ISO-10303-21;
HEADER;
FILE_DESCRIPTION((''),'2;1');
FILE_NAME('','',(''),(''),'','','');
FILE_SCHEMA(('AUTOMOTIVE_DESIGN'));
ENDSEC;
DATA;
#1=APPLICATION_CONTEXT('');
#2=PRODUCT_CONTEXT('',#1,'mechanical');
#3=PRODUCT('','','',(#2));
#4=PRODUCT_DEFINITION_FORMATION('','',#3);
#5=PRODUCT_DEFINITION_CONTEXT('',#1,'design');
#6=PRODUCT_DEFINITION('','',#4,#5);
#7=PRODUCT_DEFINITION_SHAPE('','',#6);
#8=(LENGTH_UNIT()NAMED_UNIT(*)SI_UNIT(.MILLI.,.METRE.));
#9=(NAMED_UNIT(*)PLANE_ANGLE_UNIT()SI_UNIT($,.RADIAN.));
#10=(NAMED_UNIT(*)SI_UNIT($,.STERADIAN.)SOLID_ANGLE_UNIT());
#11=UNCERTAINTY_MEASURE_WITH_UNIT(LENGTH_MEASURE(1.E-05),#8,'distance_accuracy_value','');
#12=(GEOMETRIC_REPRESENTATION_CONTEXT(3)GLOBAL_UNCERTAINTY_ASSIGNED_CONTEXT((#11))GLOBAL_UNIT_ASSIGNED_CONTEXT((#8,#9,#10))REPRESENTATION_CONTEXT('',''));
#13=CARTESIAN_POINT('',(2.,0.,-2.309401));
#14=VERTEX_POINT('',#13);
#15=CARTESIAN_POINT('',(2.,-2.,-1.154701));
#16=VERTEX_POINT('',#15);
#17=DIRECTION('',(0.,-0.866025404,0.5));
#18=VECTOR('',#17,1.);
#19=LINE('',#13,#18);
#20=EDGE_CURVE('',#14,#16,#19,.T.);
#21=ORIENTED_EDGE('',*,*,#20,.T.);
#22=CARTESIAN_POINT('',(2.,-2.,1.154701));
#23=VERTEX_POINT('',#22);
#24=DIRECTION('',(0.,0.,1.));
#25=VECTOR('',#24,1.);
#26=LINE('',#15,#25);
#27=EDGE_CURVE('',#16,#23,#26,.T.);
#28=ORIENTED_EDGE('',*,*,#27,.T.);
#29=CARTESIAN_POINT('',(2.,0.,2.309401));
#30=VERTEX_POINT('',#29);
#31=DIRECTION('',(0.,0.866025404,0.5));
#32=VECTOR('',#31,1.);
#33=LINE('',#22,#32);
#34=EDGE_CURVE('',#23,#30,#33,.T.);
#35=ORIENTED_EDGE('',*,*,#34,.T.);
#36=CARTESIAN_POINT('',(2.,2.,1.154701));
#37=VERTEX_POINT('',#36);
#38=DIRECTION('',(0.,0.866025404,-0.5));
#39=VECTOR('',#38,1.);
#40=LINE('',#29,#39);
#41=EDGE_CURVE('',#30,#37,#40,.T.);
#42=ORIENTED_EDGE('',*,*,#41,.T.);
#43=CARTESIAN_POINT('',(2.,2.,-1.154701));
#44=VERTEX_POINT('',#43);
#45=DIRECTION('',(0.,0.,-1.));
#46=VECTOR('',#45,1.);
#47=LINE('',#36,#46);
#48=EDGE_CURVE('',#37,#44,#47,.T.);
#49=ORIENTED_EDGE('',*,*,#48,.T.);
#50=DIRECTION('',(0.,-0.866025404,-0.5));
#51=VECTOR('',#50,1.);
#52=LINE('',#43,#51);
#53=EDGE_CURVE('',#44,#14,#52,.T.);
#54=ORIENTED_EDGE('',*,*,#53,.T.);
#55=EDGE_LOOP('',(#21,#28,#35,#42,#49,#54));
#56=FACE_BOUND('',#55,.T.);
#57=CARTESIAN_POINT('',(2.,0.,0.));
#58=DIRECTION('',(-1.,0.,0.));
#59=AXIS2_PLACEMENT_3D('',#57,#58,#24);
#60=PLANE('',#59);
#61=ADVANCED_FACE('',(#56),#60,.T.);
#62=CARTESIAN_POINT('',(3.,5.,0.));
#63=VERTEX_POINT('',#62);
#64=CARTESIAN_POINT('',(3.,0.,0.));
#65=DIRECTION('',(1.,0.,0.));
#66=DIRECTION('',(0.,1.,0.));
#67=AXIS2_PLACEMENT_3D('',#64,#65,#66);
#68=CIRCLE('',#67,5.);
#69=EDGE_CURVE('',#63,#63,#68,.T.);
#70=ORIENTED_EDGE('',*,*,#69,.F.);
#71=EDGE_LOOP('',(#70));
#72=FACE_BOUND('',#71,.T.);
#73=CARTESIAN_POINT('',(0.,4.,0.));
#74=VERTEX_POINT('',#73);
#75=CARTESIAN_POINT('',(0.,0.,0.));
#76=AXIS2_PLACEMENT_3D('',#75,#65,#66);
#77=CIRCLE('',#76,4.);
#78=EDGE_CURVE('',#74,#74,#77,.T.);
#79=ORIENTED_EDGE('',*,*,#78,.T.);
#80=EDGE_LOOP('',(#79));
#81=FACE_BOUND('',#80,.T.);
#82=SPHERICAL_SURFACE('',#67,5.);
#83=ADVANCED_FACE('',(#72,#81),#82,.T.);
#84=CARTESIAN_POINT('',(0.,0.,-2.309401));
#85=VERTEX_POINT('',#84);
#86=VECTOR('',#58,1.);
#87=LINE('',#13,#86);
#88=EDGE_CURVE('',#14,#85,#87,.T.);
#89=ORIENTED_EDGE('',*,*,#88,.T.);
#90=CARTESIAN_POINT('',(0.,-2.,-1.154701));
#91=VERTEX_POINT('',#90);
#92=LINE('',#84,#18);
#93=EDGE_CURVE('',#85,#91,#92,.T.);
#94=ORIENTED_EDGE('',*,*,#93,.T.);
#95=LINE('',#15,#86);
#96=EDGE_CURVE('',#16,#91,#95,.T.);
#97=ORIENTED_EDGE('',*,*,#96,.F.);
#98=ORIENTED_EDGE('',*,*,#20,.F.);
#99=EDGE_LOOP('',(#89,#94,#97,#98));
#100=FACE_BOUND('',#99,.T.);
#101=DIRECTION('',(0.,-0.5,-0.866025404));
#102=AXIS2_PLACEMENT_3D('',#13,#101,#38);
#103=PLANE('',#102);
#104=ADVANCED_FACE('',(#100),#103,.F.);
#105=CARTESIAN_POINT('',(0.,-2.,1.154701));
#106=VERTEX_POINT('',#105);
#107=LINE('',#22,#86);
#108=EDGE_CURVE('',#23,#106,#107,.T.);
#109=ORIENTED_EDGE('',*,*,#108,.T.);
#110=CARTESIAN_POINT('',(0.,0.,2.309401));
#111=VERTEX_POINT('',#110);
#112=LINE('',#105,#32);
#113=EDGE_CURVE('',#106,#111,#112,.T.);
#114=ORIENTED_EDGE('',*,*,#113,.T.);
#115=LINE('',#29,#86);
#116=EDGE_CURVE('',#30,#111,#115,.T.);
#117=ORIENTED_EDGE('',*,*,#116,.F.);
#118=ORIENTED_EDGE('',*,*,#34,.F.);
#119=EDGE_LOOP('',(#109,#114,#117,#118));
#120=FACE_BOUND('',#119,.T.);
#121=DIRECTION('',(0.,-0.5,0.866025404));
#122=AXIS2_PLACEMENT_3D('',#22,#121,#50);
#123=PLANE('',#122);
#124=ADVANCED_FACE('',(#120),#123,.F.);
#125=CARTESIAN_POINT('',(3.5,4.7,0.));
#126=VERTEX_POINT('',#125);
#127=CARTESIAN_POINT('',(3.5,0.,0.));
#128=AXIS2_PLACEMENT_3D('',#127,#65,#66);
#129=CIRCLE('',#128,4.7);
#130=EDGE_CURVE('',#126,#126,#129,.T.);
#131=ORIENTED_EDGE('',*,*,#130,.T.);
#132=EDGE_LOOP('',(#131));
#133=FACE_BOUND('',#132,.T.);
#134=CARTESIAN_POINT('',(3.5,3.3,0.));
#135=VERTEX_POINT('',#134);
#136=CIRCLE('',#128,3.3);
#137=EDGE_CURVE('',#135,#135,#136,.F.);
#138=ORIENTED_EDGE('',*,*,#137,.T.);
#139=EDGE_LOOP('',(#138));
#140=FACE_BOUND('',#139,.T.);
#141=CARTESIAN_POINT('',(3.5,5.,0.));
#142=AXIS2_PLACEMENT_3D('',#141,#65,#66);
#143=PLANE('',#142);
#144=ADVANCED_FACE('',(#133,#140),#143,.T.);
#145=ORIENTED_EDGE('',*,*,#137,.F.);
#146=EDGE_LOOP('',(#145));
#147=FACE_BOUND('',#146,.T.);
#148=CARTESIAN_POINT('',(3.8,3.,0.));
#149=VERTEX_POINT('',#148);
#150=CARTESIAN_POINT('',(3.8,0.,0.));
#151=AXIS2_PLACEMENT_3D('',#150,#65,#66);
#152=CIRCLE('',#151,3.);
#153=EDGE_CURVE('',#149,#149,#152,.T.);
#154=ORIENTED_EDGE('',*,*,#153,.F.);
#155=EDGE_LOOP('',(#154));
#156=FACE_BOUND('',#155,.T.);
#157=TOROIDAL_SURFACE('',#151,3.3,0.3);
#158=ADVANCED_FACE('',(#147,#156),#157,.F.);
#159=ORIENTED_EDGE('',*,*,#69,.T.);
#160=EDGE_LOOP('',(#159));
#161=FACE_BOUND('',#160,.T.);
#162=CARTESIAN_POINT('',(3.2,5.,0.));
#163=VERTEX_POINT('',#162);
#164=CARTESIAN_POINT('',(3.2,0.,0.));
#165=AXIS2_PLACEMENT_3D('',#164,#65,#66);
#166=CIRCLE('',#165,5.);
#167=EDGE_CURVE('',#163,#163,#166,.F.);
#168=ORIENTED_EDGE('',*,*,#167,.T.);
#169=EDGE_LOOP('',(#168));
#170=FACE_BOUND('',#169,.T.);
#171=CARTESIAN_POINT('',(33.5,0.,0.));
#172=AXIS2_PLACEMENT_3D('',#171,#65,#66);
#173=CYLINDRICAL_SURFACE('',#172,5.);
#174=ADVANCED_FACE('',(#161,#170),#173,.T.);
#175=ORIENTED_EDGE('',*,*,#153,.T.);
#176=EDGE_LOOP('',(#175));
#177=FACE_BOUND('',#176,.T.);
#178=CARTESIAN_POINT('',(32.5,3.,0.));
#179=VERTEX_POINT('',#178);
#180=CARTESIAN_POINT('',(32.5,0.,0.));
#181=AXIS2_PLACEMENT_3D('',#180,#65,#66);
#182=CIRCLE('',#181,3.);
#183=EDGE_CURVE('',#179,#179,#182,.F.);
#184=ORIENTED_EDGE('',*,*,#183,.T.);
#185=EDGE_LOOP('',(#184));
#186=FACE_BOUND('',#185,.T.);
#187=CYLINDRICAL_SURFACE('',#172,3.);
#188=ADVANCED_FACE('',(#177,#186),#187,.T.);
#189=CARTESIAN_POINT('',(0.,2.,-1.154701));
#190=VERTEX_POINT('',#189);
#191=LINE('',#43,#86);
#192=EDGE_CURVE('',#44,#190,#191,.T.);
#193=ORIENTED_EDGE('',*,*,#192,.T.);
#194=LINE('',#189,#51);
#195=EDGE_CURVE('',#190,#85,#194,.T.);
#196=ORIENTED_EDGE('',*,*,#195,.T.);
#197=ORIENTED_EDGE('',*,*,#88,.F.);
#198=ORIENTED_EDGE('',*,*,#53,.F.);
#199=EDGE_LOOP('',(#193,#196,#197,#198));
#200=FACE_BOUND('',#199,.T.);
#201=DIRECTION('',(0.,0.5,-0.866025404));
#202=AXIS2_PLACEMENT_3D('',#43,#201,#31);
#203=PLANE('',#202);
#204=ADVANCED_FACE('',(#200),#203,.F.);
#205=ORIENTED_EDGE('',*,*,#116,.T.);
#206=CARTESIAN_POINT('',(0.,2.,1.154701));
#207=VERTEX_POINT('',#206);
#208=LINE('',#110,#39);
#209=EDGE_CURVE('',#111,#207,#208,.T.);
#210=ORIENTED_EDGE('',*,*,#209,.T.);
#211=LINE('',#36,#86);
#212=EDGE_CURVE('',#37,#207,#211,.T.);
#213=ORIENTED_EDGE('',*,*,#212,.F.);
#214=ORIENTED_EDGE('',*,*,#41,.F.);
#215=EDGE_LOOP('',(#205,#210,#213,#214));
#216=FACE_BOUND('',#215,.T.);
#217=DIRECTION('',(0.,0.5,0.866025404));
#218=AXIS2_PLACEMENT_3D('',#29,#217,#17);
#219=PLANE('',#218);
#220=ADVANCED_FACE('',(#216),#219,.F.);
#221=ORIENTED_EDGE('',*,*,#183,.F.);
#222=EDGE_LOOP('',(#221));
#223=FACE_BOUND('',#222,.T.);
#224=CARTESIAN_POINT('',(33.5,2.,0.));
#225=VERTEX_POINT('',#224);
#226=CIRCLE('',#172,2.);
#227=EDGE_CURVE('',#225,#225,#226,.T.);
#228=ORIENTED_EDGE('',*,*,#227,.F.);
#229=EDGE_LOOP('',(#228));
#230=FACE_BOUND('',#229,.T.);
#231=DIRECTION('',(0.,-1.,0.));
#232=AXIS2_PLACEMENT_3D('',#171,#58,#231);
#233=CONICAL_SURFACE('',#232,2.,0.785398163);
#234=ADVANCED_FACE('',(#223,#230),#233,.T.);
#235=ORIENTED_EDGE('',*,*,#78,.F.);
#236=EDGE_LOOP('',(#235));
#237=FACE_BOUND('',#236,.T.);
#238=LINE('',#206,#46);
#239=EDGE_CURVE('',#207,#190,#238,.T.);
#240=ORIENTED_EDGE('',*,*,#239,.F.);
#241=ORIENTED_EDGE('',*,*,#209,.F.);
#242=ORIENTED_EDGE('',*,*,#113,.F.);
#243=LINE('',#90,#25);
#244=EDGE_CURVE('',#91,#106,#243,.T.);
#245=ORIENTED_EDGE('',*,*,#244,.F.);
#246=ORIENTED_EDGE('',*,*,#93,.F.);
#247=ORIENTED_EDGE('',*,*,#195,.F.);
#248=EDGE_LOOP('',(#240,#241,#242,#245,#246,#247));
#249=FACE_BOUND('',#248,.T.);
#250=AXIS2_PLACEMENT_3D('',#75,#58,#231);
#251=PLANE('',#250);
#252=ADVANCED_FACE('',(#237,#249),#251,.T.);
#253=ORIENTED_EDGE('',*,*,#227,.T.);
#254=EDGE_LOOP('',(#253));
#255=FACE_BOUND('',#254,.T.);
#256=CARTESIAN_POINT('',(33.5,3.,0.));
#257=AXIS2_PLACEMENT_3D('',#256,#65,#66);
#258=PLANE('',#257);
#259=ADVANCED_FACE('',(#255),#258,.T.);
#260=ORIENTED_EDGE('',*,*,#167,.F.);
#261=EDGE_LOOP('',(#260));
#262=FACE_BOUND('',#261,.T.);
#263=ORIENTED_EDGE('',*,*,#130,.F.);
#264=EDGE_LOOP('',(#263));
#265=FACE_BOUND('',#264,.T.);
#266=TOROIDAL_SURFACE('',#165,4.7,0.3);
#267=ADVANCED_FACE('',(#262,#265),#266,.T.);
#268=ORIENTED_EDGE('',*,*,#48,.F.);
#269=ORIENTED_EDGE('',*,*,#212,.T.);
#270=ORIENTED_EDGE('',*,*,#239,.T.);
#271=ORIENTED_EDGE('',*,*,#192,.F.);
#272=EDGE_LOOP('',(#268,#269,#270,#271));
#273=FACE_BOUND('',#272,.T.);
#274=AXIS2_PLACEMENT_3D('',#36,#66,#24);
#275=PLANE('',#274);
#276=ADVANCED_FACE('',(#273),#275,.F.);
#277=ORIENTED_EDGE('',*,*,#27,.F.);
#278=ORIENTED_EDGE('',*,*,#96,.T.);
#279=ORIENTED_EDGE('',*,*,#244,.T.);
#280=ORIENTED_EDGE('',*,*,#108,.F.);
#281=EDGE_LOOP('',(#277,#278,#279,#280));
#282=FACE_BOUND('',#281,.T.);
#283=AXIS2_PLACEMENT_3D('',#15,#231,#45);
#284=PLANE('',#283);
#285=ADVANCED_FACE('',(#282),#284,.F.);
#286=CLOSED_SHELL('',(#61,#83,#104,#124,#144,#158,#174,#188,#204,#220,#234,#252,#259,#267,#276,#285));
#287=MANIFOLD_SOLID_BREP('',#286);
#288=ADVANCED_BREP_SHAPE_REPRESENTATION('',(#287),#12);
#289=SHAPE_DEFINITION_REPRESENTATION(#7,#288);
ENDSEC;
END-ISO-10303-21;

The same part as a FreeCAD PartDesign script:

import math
import FreeCAD as App
import Part
import Sketcher
Q = App.Units.Quantity


def edges_at(feature, points):
    """Names of the edges that pass closest to the given points."""
    edges = feature.Shape.Edges
    near = lambda p: min(range(len(edges)), key=lambda i: edges[i].distToShape(Part.Vertex(*p))[0])
    return sorted({f"Edge{near(p) + 1}" for p in points})


def add_polygon(sketch, points):
    """Adds a closed chain of lines whose ends are joined by coincident constraints."""
    first, n = sketch.GeometryCount, len(points)
    for a, b in zip(points, points[1:] + points[:1]):
        sketch.addGeometry(Part.LineSegment(App.Vector(*a, 0), App.Vector(*b, 0)), False)
    for i in range(n):
        sketch.addConstraint(Sketcher.Constraint("Coincident", first + i, 2, first + (i + 1) % n, 1))

doc = App.newDocument("Part")
body = doc.addObject("PartDesign::Body", "Body")

sketch1 = doc.addObject("Sketcher::SketchObject", "Sketch")
body.addObject(sketch1)
sketch1.AttachmentSupport = (doc.XY_Plane, [""])
sketch1.MapMode = "FlatFace"
sketch1.addGeometry(Part.LineSegment(App.Vector(0, 4, 0), App.Vector(0, 0, 0)), False)
sketch1.addGeometry(Part.LineSegment(App.Vector(0, 0, 0), App.Vector(33.5, 0, 0)), False)
sketch1.addGeometry(Part.LineSegment(App.Vector(33.5, 0, 0), App.Vector(33.5, 3, 0)), False)
sketch1.addGeometry(Part.LineSegment(App.Vector(33.5, 3, 0), App.Vector(3.5, 3, 0)), False)
sketch1.addGeometry(Part.LineSegment(App.Vector(3.5, 3, 0), App.Vector(3.5, 5, 0)), False)
sketch1.addGeometry(Part.LineSegment(App.Vector(3.5, 5, 0), App.Vector(3, 5, 0)), False)
sketch1.addGeometry(Part.ArcOfCircle(Part.Circle(App.Vector(3, 0, 0), App.Vector(0, 0, 1), 5), math.radians(90), math.radians(126.869898)), False)
sketch1.addConstraint(Sketcher.Constraint("Coincident", 0, 2, 1, 1))
sketch1.addConstraint(Sketcher.Constraint("Coincident", 1, 2, 2, 1))
sketch1.addConstraint(Sketcher.Constraint("Coincident", 2, 2, 3, 1))
sketch1.addConstraint(Sketcher.Constraint("Coincident", 3, 2, 4, 1))
sketch1.addConstraint(Sketcher.Constraint("Coincident", 4, 2, 5, 1))
sketch1.addConstraint(Sketcher.Constraint("Tangent", 5, 2, 6, 1))
sketch1.addConstraint(Sketcher.Constraint("Coincident", 6, 2, 0, 1))
sketch1.addConstraint(Sketcher.Constraint("Vertical", 0))
sketch1.addConstraint(Sketcher.Constraint("Horizontal", 1))
sketch1.addConstraint(Sketcher.Constraint("Vertical", 2))
sketch1.addConstraint(Sketcher.Constraint("Horizontal", 3))
sketch1.addConstraint(Sketcher.Constraint("Vertical", 4))
sketch1.addConstraint(Sketcher.Constraint("Horizontal", 5))
sketch1.addConstraint(Sketcher.Constraint("Coincident", 0, 2, -1, 1))
sketch1.addConstraint(Sketcher.Constraint("PointOnObject", 6, 3, -1))
sketch1.addConstraint(Sketcher.Constraint("Radius", 6, Q("5 mm")))
sketch1.addConstraint(Sketcher.Constraint("DistanceX", 3, 2, 3, 1, Q("30 mm")))
sketch1.addConstraint(Sketcher.Constraint("DistanceY", 0, 2, 0, 1, Q("4 mm")))
sketch1.addConstraint(Sketcher.Constraint("DistanceY", 2, 1, 2, 2, Q("3 mm")))
sketch1.addConstraint(Sketcher.Constraint("DistanceX", 1, 1, 1, 2, Q("33.5 mm")))
revolution = doc.addObject("PartDesign::Revolution", "Revolution")
body.addObject(revolution)
revolution.Profile = sketch1
revolution.ReferenceAxis = (sketch1, ["H_Axis"])
revolution.Angle = 360

sketch2 = doc.addObject("Sketcher::SketchObject", "Sketch001")
body.addObject(sketch2)
sketch2.AttachmentSupport = (doc.YZ_Plane, [""])
sketch2.MapMode = "FlatFace"
add_polygon(sketch2, [(2, 1.154701), (2, -1.154701), (0, -2.309401), (-2, -1.154701), (-2, 1.154701), (0, 2.309401)])
sketch2.addConstraint(Sketcher.Constraint("Vertical", 0))
sketch2.addConstraint(Sketcher.Constraint("Vertical", 3))
sketch2.addConstraint(Sketcher.Constraint("Symmetric", 0, 2, 3, 2, -1, 1))
sketch2.addConstraint(Sketcher.Constraint("Symmetric", 1, 2, 4, 2, -1, 1))
sketch2.addConstraint(Sketcher.Constraint("PointOnObject", 1, 2, -2))
sketch2.addConstraint(Sketcher.Constraint("Parallel", 2, 5))
sketch2.addConstraint(Sketcher.Constraint("Horizontal", 0, 2, 2, 2))
sketch2.addConstraint(Sketcher.Constraint("Angle", 1, Q("-150 deg")))
sketch2.addConstraint(Sketcher.Constraint("DistanceX", -1, 1, 0, 2, Q("2 mm")))
sketch2.addConstraint(Sketcher.Constraint("DistanceY", 0, 2, 0, 1, Q("2.309401 mm")))
pocket1 = doc.addObject("PartDesign::Pocket", "Pocket")
body.addObject(pocket1)
pocket1.Profile = sketch2
pocket1.Length = 2
pocket1.Reversed = True
doc.recompute()

fillet = doc.addObject("PartDesign::Fillet", "Fillet")
body.addObject(fillet)
fillet.Base = (pocket1, edges_at(pocket1, [(3.5, -3, 0), (3.5, -5, 0)]))
fillet.Radius = 0.3
doc.recompute()

chamfer = doc.addObject("PartDesign::Chamfer", "Chamfer")
body.addObject(chamfer)
chamfer.Base = (fillet, edges_at(fillet, [(33.5, -3, 0)]))
chamfer.Size = 1

doc.recompute()
